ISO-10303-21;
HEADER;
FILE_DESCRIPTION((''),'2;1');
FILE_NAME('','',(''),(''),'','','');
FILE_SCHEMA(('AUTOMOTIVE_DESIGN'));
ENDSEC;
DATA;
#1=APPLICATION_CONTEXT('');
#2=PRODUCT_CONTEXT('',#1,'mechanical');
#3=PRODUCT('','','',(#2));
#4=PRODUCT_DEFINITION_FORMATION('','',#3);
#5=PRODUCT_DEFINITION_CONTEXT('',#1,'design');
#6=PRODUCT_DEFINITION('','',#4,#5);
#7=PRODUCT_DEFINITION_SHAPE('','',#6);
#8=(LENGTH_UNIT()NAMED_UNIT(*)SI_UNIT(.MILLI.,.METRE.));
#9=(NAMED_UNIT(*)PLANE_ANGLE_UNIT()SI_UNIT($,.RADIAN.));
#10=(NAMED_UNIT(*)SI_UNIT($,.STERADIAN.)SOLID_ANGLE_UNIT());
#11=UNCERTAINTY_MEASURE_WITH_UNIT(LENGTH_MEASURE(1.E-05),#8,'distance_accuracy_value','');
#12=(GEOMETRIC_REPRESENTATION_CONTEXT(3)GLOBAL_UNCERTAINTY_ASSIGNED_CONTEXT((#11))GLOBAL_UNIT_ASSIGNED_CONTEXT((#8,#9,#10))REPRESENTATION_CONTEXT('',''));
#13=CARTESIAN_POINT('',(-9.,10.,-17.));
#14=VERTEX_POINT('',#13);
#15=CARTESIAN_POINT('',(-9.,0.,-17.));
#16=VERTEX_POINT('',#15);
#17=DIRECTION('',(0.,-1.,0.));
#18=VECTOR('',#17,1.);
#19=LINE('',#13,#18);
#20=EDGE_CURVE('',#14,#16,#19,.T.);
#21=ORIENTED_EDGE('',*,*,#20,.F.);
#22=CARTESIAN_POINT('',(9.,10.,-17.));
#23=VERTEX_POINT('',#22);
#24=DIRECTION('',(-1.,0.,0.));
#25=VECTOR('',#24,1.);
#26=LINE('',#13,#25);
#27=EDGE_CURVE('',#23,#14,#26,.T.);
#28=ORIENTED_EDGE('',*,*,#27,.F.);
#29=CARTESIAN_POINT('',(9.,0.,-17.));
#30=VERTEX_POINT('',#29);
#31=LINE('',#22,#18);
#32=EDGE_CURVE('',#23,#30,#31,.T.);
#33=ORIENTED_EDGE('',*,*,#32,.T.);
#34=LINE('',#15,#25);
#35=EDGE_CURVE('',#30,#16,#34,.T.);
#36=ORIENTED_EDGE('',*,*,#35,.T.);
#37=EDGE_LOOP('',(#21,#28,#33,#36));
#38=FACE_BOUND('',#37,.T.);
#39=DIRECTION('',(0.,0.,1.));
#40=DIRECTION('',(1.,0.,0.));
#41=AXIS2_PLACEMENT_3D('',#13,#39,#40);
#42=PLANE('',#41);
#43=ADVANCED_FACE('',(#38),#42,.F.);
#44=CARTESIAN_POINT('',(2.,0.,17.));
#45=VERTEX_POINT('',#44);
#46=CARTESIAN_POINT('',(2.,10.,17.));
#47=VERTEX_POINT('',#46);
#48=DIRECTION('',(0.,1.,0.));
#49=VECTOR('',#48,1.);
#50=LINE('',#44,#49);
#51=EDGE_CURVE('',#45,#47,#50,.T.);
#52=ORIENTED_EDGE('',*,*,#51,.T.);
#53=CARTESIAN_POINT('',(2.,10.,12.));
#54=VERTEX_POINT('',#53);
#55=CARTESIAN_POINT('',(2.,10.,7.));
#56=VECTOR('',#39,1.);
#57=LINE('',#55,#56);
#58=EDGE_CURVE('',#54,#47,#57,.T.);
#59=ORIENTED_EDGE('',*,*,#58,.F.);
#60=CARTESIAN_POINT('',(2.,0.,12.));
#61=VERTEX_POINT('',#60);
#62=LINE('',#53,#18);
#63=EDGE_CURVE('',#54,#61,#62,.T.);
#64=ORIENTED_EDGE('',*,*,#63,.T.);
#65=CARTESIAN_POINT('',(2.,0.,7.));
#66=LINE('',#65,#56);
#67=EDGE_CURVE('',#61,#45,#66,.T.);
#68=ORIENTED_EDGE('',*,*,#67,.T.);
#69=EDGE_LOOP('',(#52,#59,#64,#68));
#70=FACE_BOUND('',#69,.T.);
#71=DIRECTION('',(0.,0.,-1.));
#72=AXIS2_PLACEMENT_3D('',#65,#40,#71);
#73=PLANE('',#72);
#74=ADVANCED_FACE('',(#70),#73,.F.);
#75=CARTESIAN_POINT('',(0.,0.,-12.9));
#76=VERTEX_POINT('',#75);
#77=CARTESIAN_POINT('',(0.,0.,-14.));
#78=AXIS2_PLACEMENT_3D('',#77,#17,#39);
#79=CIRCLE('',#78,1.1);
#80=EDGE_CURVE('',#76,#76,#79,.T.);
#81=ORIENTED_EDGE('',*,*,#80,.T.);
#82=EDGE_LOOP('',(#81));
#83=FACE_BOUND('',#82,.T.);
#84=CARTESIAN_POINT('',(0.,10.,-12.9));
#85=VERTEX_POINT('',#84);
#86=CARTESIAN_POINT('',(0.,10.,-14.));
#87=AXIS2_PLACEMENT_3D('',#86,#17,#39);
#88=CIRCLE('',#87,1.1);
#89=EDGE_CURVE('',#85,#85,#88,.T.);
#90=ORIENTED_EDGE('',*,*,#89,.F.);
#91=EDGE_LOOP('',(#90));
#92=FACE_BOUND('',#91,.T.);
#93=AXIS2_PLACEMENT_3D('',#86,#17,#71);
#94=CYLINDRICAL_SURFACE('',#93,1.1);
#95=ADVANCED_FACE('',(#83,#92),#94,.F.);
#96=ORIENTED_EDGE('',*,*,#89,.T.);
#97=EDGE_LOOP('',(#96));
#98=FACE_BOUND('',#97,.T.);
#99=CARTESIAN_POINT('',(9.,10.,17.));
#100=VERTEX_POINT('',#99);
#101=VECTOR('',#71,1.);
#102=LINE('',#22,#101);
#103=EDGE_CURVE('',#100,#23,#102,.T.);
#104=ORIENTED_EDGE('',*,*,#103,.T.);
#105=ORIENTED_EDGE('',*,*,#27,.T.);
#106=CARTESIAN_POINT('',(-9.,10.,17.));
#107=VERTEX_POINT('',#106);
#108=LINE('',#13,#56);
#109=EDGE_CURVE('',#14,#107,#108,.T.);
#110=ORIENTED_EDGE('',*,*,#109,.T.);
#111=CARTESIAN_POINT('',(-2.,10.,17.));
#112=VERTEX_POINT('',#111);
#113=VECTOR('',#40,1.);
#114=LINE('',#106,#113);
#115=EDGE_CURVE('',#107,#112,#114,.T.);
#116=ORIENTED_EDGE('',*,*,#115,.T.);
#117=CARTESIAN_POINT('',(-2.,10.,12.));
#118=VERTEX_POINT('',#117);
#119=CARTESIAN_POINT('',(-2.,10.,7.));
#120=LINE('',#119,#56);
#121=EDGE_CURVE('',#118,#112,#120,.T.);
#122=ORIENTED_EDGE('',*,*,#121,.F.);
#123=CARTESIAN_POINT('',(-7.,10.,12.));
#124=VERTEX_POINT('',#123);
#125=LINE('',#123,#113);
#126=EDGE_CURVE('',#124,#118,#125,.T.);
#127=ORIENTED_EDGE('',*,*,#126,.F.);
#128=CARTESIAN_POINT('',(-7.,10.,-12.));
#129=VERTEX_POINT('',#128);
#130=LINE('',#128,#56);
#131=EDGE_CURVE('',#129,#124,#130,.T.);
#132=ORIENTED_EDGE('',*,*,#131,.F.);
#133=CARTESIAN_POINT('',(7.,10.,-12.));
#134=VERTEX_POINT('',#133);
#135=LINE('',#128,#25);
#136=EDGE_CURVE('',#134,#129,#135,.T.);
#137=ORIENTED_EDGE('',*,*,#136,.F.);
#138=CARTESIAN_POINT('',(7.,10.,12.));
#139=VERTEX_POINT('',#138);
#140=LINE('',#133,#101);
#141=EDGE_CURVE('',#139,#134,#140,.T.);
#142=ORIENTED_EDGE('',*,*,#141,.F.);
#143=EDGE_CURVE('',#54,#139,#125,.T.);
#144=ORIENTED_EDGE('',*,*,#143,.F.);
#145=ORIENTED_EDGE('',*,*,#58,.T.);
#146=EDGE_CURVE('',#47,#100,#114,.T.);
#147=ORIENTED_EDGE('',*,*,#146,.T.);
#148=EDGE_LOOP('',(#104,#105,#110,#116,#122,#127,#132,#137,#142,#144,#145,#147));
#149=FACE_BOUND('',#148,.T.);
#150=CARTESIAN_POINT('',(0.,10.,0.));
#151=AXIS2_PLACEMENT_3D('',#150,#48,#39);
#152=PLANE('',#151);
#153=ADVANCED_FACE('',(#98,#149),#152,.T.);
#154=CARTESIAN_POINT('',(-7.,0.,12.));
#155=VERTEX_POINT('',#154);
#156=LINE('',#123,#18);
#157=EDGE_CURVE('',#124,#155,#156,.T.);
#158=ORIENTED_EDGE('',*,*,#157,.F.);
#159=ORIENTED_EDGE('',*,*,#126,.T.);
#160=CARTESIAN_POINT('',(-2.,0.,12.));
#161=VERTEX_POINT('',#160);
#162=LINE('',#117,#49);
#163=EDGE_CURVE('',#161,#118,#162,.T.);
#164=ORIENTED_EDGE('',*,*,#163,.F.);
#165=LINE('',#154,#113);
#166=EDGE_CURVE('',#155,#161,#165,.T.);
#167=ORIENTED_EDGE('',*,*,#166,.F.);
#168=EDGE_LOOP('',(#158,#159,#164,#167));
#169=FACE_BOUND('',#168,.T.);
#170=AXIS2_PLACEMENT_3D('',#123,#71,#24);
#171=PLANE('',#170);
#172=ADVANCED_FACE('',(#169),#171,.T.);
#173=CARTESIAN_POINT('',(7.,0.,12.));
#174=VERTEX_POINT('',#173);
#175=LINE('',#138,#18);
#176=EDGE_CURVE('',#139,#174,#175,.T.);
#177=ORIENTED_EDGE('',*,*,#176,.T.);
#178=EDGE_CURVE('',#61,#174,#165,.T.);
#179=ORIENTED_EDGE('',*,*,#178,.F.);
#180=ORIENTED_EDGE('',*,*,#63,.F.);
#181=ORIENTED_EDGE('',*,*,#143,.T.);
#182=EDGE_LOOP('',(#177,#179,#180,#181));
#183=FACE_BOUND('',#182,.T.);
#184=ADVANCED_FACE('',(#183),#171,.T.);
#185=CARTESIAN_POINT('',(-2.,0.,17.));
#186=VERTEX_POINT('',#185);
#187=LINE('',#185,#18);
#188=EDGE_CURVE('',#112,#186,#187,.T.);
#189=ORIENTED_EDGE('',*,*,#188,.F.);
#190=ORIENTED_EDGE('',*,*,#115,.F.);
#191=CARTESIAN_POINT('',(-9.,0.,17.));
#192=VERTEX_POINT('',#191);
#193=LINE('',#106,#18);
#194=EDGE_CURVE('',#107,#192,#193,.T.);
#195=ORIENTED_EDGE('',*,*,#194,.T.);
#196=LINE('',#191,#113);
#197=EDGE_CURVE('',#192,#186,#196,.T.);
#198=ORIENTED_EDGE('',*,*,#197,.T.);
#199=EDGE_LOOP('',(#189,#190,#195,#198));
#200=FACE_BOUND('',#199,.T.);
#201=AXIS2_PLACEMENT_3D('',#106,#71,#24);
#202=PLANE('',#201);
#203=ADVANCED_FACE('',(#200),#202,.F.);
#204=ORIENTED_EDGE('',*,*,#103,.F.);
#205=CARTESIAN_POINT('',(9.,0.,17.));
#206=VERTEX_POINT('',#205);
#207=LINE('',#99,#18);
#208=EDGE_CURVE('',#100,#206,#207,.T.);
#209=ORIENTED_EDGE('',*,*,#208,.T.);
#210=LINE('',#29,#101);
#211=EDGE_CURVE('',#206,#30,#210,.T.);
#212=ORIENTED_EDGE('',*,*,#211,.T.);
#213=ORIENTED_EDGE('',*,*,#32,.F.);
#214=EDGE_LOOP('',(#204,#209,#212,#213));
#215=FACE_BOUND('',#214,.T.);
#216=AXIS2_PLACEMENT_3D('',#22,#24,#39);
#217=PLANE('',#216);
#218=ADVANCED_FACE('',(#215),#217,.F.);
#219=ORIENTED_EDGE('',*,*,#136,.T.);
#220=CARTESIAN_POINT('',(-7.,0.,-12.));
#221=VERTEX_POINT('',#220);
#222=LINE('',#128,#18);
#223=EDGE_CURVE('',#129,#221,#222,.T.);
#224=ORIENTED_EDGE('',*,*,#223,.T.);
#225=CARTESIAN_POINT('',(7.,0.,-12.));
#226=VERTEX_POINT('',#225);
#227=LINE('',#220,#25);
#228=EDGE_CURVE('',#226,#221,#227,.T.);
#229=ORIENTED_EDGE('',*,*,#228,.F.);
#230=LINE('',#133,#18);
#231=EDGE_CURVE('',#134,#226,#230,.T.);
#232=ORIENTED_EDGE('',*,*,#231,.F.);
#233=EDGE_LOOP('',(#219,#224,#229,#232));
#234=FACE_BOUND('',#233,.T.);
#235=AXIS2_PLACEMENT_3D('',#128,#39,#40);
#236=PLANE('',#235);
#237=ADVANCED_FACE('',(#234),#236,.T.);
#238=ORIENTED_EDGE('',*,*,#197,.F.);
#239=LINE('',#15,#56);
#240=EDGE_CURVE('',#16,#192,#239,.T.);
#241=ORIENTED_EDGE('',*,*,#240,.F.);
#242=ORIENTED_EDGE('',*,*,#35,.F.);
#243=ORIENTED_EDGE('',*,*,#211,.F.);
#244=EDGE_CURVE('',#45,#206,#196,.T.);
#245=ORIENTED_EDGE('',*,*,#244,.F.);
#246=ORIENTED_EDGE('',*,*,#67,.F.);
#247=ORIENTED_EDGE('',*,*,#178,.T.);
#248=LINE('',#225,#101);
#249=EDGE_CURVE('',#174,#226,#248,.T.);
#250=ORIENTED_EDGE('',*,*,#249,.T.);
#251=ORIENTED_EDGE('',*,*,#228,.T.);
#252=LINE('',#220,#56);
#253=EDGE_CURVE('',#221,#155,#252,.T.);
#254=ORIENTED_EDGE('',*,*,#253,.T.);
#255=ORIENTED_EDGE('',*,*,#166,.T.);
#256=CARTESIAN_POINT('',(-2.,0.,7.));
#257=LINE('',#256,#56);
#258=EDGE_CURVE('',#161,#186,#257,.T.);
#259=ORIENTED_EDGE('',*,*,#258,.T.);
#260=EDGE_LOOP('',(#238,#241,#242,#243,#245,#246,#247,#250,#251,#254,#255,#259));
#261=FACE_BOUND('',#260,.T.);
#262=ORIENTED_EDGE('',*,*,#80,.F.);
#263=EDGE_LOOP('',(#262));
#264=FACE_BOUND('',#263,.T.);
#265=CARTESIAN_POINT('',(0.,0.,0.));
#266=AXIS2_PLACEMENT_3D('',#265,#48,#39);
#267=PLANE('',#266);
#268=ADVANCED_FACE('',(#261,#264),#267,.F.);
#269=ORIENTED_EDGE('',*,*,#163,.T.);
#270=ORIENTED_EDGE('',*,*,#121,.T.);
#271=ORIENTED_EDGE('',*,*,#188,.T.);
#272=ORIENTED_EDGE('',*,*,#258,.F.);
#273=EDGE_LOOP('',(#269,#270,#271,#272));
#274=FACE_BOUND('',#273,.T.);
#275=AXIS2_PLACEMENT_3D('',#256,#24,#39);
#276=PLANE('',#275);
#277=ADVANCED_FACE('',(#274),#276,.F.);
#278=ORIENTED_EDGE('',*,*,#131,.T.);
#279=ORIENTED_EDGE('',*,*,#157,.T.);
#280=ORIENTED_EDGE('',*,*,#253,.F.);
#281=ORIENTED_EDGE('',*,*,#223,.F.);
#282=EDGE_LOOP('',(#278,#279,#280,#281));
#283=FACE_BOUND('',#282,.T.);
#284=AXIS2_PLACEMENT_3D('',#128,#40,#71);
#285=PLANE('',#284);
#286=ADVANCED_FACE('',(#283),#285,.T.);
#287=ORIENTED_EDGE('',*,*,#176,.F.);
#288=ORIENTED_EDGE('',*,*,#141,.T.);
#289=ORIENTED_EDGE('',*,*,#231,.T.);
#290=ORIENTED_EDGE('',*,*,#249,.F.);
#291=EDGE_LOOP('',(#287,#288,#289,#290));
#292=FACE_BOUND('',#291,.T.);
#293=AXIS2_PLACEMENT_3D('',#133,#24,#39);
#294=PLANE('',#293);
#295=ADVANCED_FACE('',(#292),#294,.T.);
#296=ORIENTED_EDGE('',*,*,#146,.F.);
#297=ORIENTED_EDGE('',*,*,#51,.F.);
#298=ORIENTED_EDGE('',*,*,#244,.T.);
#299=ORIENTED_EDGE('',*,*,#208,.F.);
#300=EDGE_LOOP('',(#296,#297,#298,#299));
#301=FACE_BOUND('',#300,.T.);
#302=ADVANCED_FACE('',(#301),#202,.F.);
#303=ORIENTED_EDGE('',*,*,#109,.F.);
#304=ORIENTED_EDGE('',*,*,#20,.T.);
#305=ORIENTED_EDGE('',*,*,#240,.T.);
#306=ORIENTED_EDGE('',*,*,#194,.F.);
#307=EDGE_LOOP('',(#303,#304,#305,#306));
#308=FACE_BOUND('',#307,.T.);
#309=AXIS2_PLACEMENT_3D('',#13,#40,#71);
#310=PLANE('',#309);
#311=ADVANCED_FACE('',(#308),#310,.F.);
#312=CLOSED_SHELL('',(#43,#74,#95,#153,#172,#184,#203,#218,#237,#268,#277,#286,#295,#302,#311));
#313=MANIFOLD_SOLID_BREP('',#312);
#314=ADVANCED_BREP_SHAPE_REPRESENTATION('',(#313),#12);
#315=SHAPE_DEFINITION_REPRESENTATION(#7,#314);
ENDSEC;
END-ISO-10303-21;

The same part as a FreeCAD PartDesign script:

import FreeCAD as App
import Part
import Sketcher


def add_polygon(sketch, points):
    """Adds a closed chain of lines whose ends are joined by coincident constraints."""
    first, n = sketch.GeometryCount, len(points)
    for a, b in zip(points, points[1:] + points[:1]):
        sketch.addGeometry(Part.LineSegment(App.Vector(*a, 0), App.Vector(*b, 0)), False)
    for i in range(n):
        sketch.addConstraint(Sketcher.Constraint("Coincident", first + i, 2, first + (i + 1) % n, 1))

doc = App.newDocument("Part")
body = doc.addObject("PartDesign::Body", "Body")

# Sketch on XZ plane
sketch1 = body.newObject("Sketcher::SketchObject", "Sketch")
sketch1.AttachmentSupport = (doc.getObject("XZ_Plane"), [""])
sketch1.MapMode = "FlatFace"
add_polygon(sketch1, [(-9, -17), (-9, 17), (9, 17), (9, -17)])  # lines 0-3
add_polygon(sketch1, [(7, 12), (-7, 12), (-7, -12), (7, -12)])  # lines 4-7
sketch1.addConstraint(Sketcher.Constraint("Vertical", 0))
sketch1.addConstraint(Sketcher.Constraint("Horizontal", 1))
sketch1.addConstraint(Sketcher.Constraint("Vertical", 2))
sketch1.addConstraint(Sketcher.Constraint("Horizontal", 3))
sketch1.addConstraint(Sketcher.Constraint("Horizontal", 4))
sketch1.addConstraint(Sketcher.Constraint("Vertical", 5))
sketch1.addConstraint(Sketcher.Constraint("Horizontal", 6))
sketch1.addConstraint(Sketcher.Constraint("Vertical", 7))
sketch1.addConstraint(Sketcher.Constraint("Symmetric", 0, 2, 2, 2, -1, 1))
sketch1.addConstraint(Sketcher.Constraint("Symmetric", 4, 2, 6, 2, -1, 1))
sketch1.addConstraint(Sketcher.Constraint("DistanceX", 1, 1, 1, 2, 18.0))
sketch1.addConstraint(Sketcher.Constraint("DistanceX", 4, 2, 4, 1, 14.0))
sketch1.addConstraint(Sketcher.Constraint("DistanceY", 0, 1, 0, 2, 34.0))
sketch1.addConstraint(Sketcher.Constraint("DistanceY", 5, 2, 5, 1, 24.0))
pad1 = body.newObject("PartDesign::Pad", "Pad")
pad1.Profile = sketch1
pad1.Length = 10
pad1.Reversed = True

# Sketch on XZ plane
sketch2 = body.newObject("Sketcher::SketchObject", "Sketch001")
sketch2.AttachmentSupport = (doc.getObject("XZ_Plane"), [""])
sketch2.MapMode = "FlatFace"
sketch2.addGeometry(Part.Circle(App.Vector(0, 14, 0), App.Vector(0, 0, 1), 1.1), False)
sketch2.addGeometry(Part.Circle(App.Vector(0, -14, 0), App.Vector(0, 0, 1), 1.1), False)
sketch2.addConstraint(Sketcher.Constraint("Equal", 0, 1))
sketch2.addConstraint(Sketcher.Constraint("Symmetric", 0, 3, 1, 3, -1, 1))
sketch2.addConstraint(Sketcher.Constraint("PointOnObject", 0, 3, -2))
sketch2.addConstraint(Sketcher.Constraint("Diameter", 0, 2.2))
sketch2.addConstraint(Sketcher.Constraint("DistanceY", -1, 1, 0, 3, 14.0))
pocket1 = body.newObject("PartDesign::Pocket", "Pocket")
pocket1.Profile = sketch2
pocket1.Type = "ThroughAll"

# Sketch on XY plane
sketch3 = body.newObject("Sketcher::SketchObject", "Sketch002")
sketch3.AttachmentSupport = (doc.getObject("XY_Plane"), [""])
sketch3.MapMode = "FlatFace"
sketch3.AttachmentOffset = App.Placement(App.Vector(0, 0, 17), App.Rotation())
add_polygon(sketch3, [(-2, 10), (-2, 0), (2, 0), (2, 10)])  # lines 0-3
sketch3.addConstraint(Sketcher.Constraint("Vertical", 0))
sketch3.addConstraint(Sketcher.Constraint("Horizontal", 1))
sketch3.addConstraint(Sketcher.Constraint("Vertical", 2))
sketch3.addConstraint(Sketcher.Constraint("Horizontal", 3))
sketch3.addConstraint(Sketcher.Constraint("Symmetric", 0, 2, 1, 2, -1, 1))
sketch3.addConstraint(Sketcher.Constraint("DistanceX", 1, 1, 1, 2, 4.0))
sketch3.addConstraint(Sketcher.Constraint("DistanceY", 0, 2, 0, 1, 10.0))
pocket2 = body.newObject("PartDesign::Pocket", "Pocket001")
pocket2.Profile = sketch3
pocket2.Length = 10

doc.recompute()
